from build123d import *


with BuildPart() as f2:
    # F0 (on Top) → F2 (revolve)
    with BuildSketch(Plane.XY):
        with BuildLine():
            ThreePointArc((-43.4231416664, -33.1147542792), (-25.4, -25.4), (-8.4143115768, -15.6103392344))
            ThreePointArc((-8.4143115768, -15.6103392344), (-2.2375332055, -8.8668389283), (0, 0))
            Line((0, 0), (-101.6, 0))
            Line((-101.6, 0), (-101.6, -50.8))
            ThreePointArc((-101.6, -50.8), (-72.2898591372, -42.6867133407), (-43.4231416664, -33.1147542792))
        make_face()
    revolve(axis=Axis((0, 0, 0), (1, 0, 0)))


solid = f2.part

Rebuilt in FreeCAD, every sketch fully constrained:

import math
import FreeCAD as App
import Part
import Sketcher
from FreeCAD import Vector
Q = App.Units.Quantity

doc = App.newDocument("Part")
params = doc.addObject("Spreadsheet::Sheet", "Params")
for row, (alias, value) in enumerate([
    ("sketch1_width", "4 in"),
    ("sketch1_height", "2 in"),
    ("revolution_angle", "360 deg"),
], start=1):
    params.set(f"A{row}", alias)
    params.set(f"B{row}", "=" + value)
    params.setAlias(f"B{row}", alias)

body = doc.addObject("PartDesign::Body", "Body")

# Sketch on XY plane
sketch1 = body.newObject("Sketcher::SketchObject", "Sketch")
sketch1.AttachmentSupport = (doc.getObject("XY_Plane"), [""])
sketch1.MapMode = "FlatFace"
sketch1.addGeometry(Part.ArcOfCircle(Part.Circle(Vector(-99.495112, 122.790223, 0), Vector(0, 0, 1), 165.681706), math.radians(-70.218636), math.radians(-56.651262)), False)
sketch1.addGeometry(Part.ArcOfCircle(Part.Circle(Vector(-18.687407, 0, 0), Vector(0, 0, 1), 18.687407), math.radians(-56.651262), math.radians(0)), False)
sketch1.addGeometry(Part.LineSegment(Vector(0, 0, 0), Vector(-101.6, 0, 0)), False)
sketch1.addGeometry(Part.LineSegment(Vector(-101.6, 0, 0), Vector(-101.6, -50.8, 0)), False)
sketch1.addGeometry(Part.ArcOfCircle(Part.Circle(Vector(-248.737779, 537.751116, 0), Vector(0, 0, 1), 606.664604), math.radians(-75.963757), math.radians(-70.218636)), False)
sketch1.addConstraint(Sketcher.Constraint("Tangent", 0, 2, 1, 1))
sketch1.addConstraint(Sketcher.Constraint("Coincident", 1, 2, 2, 1))
sketch1.addConstraint(Sketcher.Constraint("Coincident", 2, 2, 3, 1))
sketch1.addConstraint(Sketcher.Constraint("Coincident", 3, 2, 4, 1))
sketch1.addConstraint(Sketcher.Constraint("Tangent", 4, 2, 0, 1))
sketch1.addConstraint(Sketcher.Constraint("Horizontal", 2))
sketch1.addConstraint(Sketcher.Constraint("Vertical", 3))
sketch1.addConstraint(Sketcher.Constraint("Coincident", 1, 2, -1, 1))
sketch1.addConstraint(Sketcher.Constraint("PointOnObject", 1, 3, -1))
sketch1.addConstraint(Sketcher.Constraint("DistanceX", 2, 2, 2, 1, Q("4 in")))
sketch1.addConstraint(Sketcher.Constraint("DistanceY", 3, 2, 3, 1, Q("2 in")))
sketch1.addConstraint(Sketcher.Constraint("Radius", 0, 165.681706))
sketch1.addConstraint(Sketcher.Constraint("Radius", 1, 18.687407))
sketch1.addConstraint(Sketcher.Constraint("Radius", 4, 606.664604))
sketch1.addConstraint(Sketcher.Constraint("DistanceX", 0, 3, 0, 2, 91.0808))
sketch1.setExpression("Constraints[9]", "Params.sketch1_width")
sketch1.setExpression("Constraints[10]", "Params.sketch1_height")
revolution = body.newObject("PartDesign::Revolution", "Revolution")
revolution.Profile = sketch1
revolution.ReferenceAxis = (sketch1, ["H_Axis"])
revolution.setExpression("Angle", "Params.revolution_angle")

doc.recompute()
